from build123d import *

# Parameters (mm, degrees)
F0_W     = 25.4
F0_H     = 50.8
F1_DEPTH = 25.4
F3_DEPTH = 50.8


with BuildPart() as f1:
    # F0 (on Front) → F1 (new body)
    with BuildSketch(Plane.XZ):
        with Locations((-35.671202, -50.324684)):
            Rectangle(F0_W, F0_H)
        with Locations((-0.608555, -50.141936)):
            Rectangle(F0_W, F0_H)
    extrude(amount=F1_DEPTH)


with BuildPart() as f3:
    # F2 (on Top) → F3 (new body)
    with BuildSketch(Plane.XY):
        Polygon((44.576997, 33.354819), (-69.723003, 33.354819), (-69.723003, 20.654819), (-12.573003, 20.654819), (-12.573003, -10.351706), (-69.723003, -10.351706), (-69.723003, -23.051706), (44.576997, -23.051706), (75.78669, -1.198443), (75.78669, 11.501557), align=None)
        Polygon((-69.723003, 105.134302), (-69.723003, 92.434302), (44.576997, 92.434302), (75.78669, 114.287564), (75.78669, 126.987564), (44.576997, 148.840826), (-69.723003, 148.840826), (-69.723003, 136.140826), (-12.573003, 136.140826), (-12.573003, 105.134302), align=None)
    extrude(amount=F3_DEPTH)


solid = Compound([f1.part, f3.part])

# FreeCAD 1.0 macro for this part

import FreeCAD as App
import Part
import Sketcher

V = App.Vector
Q = App.Units.Quantity


def add_polygon(sketch, points):
    """Adds a closed chain of lines whose ends are joined by coincident constraints."""
    first, n = sketch.GeometryCount, len(points)
    for a, b in zip(points, points[1:] + points[:1]):
        sketch.addGeometry(Part.LineSegment(App.Vector(*a, 0), App.Vector(*b, 0)), False)
    for i in range(n):
        sketch.addConstraint(Sketcher.Constraint("Coincident", first + i, 2, first + (i + 1) % n, 1))

doc = App.newDocument("Part")
body = doc.addObject("PartDesign::Body", "Body")
body.AllowCompound = True

# Sketch on XZ plane
sketch1 = doc.addObject("Sketcher::SketchObject", "Sketch")
body.addObject(sketch1)
sketch1.AttachmentSupport = (doc.XZ_Plane, [""])
sketch1.MapMode = "FlatFace"
add_polygon(sketch1, [(-48, -25), (-48, -76), (-23, -76), (-23, -25)])  # lines 0-3
add_polygon(sketch1, [(-13, -25), (-13, -76), (12, -76), (12, -25)])  # lines 4-7
sketch1.addConstraint([
    Sketcher.Constraint("Vertical", 0),
    Sketcher.Constraint("Horizontal", 1),
    Sketcher.Constraint("Vertical", 2),
    Sketcher.Constraint("Horizontal", 3),
    Sketcher.Constraint("Vertical", 4),
    Sketcher.Constraint("Horizontal", 5),
    Sketcher.Constraint("Vertical", 6),
    Sketcher.Constraint("Horizontal", 7),
    Sketcher.Constraint("Equal", 3, 5),
    Sketcher.Constraint("Equal", 2, 4),
    Sketcher.Constraint("DistanceX", 1, 1, 1, 2, Q("1 in")),
    Sketcher.Constraint("DistanceY", 0, 2, 0, 1, Q("2 in")),
    Sketcher.Constraint("DistanceX", 0, 2, -1, 1, 48.371202),
    Sketcher.Constraint("DistanceY", 2, 2, 6, 2, 0.182748),
    Sketcher.Constraint("DistanceY", 0, 2, -1, 1, 75.724684),
    Sketcher.Constraint("DistanceX", 4, 2, -1, 1, 13.308555),
])
pad1 = doc.addObject("PartDesign::Pad", "Pad")
body.addObject(pad1)
pad1.Profile = sketch1
pad1.Length = Q("1 in")
body2 = doc.addObject("PartDesign::Body", "Body001")
body2.AllowCompound = True

# Sketch on XY plane
sketch2 = doc.addObject("Sketcher::SketchObject", "Sketch001")
body2.addObject(sketch2)
sketch2.AttachmentSupport = (doc.getObject("XY_Plane001"), [""])
sketch2.MapMode = "FlatFace"
add_polygon(sketch2, [(45, 33), (-70, 33), (-70, 21), (-13, 21), (-13, -10), (-70, -10), (-70, -23), (45, -23), (76, -1), (76, 12)])  # lines 0-9
add_polygon(sketch2, [(-70, 105), (-70, 92), (45, 92), (76, 114), (76, 127), (45, 149), (-70, 149), (-70, 136), (-13, 136), (-13, 105)])  # lines 10-19
sketch2.addConstraint([
    Sketcher.Constraint("Horizontal", 0),
    Sketcher.Constraint("Vertical", 1),
    Sketcher.Constraint("Horizontal", 2),
    Sketcher.Constraint("Vertical", 3),
    Sketcher.Constraint("Horizontal", 4),
    Sketcher.Constraint("Vertical", 5),
    Sketcher.Constraint("Horizontal", 6),
    Sketcher.Constraint("Vertical", 8),
    Sketcher.Constraint("Vertical", 10),
    Sketcher.Constraint("Horizontal", 11),
    Sketcher.Constraint("Vertical", 13),
    Sketcher.Constraint("Horizontal", 15),
    Sketcher.Constraint("Vertical", 16),
    Sketcher.Constraint("Horizontal", 17),
    Sketcher.Constraint("Vertical", 18),
    Sketcher.Constraint("Horizontal", 19),
    Sketcher.Constraint("Parallel", 7, 12),
    Sketcher.Constraint("Parallel", 9, 14),
    Sketcher.Constraint("Vertical", 1, 2, 4, 2),
    Sketcher.Constraint("Vertical", 6, 2, 9, 2),
    Sketcher.Constraint("Vertical", 5, 2, 10, 2),
    Sketcher.Constraint("Vertical", 9, 2, 11, 2),
    Sketcher.Constraint("Vertical", 8, 2, 12, 2),
    Sketcher.Constraint("Vertical", 11, 2, 14, 2),
    Sketcher.Constraint("Vertical", 10, 2, 15, 2),
    Sketcher.Constraint("Vertical", 3, 2, 17, 2),
    Sketcher.Constraint("Equal", 1, 5),
    Sketcher.Constraint("Equal", 5, 8),
    Sketcher.Constraint("Equal", 8, 10),
    Sketcher.Constraint("Equal", 10, 13),
    Sketcher.Constraint("Equal", 13, 16),
    Sketcher.Constraint("Equal", 7, 9),
    Sketcher.Constraint("DistanceX", 0, 2, 0, 1, Q("4.5 in")),
    Sketcher.Constraint("DistanceY", 1, 2, 1, 1, Q("0.5 in")),
    Sketcher.Constraint("Angle", 7, Q("35.000001 deg")),
    Sketcher.Constraint("Distance", 7, Q("1.5 in")),
    Sketcher.Constraint("DistanceX", 2, 1, 2, 2, Q("2.25 in")),
    Sketcher.Constraint("DistanceX", 0, 2, -1, 1, Q("2.7450001 in")),
    Sketcher.Constraint("DistanceY", -1, 1, 0, 2, 33.354819),
    Sketcher.Constraint("DistanceY", 4, 2, 10, 2, 102.786008),
])
pad2 = doc.addObject("PartDesign::Pad", "Pad001")
body2.addObject(pad2)
pad2.Profile = sketch2
pad2.Length = Q("2 in")

doc.recompute()
